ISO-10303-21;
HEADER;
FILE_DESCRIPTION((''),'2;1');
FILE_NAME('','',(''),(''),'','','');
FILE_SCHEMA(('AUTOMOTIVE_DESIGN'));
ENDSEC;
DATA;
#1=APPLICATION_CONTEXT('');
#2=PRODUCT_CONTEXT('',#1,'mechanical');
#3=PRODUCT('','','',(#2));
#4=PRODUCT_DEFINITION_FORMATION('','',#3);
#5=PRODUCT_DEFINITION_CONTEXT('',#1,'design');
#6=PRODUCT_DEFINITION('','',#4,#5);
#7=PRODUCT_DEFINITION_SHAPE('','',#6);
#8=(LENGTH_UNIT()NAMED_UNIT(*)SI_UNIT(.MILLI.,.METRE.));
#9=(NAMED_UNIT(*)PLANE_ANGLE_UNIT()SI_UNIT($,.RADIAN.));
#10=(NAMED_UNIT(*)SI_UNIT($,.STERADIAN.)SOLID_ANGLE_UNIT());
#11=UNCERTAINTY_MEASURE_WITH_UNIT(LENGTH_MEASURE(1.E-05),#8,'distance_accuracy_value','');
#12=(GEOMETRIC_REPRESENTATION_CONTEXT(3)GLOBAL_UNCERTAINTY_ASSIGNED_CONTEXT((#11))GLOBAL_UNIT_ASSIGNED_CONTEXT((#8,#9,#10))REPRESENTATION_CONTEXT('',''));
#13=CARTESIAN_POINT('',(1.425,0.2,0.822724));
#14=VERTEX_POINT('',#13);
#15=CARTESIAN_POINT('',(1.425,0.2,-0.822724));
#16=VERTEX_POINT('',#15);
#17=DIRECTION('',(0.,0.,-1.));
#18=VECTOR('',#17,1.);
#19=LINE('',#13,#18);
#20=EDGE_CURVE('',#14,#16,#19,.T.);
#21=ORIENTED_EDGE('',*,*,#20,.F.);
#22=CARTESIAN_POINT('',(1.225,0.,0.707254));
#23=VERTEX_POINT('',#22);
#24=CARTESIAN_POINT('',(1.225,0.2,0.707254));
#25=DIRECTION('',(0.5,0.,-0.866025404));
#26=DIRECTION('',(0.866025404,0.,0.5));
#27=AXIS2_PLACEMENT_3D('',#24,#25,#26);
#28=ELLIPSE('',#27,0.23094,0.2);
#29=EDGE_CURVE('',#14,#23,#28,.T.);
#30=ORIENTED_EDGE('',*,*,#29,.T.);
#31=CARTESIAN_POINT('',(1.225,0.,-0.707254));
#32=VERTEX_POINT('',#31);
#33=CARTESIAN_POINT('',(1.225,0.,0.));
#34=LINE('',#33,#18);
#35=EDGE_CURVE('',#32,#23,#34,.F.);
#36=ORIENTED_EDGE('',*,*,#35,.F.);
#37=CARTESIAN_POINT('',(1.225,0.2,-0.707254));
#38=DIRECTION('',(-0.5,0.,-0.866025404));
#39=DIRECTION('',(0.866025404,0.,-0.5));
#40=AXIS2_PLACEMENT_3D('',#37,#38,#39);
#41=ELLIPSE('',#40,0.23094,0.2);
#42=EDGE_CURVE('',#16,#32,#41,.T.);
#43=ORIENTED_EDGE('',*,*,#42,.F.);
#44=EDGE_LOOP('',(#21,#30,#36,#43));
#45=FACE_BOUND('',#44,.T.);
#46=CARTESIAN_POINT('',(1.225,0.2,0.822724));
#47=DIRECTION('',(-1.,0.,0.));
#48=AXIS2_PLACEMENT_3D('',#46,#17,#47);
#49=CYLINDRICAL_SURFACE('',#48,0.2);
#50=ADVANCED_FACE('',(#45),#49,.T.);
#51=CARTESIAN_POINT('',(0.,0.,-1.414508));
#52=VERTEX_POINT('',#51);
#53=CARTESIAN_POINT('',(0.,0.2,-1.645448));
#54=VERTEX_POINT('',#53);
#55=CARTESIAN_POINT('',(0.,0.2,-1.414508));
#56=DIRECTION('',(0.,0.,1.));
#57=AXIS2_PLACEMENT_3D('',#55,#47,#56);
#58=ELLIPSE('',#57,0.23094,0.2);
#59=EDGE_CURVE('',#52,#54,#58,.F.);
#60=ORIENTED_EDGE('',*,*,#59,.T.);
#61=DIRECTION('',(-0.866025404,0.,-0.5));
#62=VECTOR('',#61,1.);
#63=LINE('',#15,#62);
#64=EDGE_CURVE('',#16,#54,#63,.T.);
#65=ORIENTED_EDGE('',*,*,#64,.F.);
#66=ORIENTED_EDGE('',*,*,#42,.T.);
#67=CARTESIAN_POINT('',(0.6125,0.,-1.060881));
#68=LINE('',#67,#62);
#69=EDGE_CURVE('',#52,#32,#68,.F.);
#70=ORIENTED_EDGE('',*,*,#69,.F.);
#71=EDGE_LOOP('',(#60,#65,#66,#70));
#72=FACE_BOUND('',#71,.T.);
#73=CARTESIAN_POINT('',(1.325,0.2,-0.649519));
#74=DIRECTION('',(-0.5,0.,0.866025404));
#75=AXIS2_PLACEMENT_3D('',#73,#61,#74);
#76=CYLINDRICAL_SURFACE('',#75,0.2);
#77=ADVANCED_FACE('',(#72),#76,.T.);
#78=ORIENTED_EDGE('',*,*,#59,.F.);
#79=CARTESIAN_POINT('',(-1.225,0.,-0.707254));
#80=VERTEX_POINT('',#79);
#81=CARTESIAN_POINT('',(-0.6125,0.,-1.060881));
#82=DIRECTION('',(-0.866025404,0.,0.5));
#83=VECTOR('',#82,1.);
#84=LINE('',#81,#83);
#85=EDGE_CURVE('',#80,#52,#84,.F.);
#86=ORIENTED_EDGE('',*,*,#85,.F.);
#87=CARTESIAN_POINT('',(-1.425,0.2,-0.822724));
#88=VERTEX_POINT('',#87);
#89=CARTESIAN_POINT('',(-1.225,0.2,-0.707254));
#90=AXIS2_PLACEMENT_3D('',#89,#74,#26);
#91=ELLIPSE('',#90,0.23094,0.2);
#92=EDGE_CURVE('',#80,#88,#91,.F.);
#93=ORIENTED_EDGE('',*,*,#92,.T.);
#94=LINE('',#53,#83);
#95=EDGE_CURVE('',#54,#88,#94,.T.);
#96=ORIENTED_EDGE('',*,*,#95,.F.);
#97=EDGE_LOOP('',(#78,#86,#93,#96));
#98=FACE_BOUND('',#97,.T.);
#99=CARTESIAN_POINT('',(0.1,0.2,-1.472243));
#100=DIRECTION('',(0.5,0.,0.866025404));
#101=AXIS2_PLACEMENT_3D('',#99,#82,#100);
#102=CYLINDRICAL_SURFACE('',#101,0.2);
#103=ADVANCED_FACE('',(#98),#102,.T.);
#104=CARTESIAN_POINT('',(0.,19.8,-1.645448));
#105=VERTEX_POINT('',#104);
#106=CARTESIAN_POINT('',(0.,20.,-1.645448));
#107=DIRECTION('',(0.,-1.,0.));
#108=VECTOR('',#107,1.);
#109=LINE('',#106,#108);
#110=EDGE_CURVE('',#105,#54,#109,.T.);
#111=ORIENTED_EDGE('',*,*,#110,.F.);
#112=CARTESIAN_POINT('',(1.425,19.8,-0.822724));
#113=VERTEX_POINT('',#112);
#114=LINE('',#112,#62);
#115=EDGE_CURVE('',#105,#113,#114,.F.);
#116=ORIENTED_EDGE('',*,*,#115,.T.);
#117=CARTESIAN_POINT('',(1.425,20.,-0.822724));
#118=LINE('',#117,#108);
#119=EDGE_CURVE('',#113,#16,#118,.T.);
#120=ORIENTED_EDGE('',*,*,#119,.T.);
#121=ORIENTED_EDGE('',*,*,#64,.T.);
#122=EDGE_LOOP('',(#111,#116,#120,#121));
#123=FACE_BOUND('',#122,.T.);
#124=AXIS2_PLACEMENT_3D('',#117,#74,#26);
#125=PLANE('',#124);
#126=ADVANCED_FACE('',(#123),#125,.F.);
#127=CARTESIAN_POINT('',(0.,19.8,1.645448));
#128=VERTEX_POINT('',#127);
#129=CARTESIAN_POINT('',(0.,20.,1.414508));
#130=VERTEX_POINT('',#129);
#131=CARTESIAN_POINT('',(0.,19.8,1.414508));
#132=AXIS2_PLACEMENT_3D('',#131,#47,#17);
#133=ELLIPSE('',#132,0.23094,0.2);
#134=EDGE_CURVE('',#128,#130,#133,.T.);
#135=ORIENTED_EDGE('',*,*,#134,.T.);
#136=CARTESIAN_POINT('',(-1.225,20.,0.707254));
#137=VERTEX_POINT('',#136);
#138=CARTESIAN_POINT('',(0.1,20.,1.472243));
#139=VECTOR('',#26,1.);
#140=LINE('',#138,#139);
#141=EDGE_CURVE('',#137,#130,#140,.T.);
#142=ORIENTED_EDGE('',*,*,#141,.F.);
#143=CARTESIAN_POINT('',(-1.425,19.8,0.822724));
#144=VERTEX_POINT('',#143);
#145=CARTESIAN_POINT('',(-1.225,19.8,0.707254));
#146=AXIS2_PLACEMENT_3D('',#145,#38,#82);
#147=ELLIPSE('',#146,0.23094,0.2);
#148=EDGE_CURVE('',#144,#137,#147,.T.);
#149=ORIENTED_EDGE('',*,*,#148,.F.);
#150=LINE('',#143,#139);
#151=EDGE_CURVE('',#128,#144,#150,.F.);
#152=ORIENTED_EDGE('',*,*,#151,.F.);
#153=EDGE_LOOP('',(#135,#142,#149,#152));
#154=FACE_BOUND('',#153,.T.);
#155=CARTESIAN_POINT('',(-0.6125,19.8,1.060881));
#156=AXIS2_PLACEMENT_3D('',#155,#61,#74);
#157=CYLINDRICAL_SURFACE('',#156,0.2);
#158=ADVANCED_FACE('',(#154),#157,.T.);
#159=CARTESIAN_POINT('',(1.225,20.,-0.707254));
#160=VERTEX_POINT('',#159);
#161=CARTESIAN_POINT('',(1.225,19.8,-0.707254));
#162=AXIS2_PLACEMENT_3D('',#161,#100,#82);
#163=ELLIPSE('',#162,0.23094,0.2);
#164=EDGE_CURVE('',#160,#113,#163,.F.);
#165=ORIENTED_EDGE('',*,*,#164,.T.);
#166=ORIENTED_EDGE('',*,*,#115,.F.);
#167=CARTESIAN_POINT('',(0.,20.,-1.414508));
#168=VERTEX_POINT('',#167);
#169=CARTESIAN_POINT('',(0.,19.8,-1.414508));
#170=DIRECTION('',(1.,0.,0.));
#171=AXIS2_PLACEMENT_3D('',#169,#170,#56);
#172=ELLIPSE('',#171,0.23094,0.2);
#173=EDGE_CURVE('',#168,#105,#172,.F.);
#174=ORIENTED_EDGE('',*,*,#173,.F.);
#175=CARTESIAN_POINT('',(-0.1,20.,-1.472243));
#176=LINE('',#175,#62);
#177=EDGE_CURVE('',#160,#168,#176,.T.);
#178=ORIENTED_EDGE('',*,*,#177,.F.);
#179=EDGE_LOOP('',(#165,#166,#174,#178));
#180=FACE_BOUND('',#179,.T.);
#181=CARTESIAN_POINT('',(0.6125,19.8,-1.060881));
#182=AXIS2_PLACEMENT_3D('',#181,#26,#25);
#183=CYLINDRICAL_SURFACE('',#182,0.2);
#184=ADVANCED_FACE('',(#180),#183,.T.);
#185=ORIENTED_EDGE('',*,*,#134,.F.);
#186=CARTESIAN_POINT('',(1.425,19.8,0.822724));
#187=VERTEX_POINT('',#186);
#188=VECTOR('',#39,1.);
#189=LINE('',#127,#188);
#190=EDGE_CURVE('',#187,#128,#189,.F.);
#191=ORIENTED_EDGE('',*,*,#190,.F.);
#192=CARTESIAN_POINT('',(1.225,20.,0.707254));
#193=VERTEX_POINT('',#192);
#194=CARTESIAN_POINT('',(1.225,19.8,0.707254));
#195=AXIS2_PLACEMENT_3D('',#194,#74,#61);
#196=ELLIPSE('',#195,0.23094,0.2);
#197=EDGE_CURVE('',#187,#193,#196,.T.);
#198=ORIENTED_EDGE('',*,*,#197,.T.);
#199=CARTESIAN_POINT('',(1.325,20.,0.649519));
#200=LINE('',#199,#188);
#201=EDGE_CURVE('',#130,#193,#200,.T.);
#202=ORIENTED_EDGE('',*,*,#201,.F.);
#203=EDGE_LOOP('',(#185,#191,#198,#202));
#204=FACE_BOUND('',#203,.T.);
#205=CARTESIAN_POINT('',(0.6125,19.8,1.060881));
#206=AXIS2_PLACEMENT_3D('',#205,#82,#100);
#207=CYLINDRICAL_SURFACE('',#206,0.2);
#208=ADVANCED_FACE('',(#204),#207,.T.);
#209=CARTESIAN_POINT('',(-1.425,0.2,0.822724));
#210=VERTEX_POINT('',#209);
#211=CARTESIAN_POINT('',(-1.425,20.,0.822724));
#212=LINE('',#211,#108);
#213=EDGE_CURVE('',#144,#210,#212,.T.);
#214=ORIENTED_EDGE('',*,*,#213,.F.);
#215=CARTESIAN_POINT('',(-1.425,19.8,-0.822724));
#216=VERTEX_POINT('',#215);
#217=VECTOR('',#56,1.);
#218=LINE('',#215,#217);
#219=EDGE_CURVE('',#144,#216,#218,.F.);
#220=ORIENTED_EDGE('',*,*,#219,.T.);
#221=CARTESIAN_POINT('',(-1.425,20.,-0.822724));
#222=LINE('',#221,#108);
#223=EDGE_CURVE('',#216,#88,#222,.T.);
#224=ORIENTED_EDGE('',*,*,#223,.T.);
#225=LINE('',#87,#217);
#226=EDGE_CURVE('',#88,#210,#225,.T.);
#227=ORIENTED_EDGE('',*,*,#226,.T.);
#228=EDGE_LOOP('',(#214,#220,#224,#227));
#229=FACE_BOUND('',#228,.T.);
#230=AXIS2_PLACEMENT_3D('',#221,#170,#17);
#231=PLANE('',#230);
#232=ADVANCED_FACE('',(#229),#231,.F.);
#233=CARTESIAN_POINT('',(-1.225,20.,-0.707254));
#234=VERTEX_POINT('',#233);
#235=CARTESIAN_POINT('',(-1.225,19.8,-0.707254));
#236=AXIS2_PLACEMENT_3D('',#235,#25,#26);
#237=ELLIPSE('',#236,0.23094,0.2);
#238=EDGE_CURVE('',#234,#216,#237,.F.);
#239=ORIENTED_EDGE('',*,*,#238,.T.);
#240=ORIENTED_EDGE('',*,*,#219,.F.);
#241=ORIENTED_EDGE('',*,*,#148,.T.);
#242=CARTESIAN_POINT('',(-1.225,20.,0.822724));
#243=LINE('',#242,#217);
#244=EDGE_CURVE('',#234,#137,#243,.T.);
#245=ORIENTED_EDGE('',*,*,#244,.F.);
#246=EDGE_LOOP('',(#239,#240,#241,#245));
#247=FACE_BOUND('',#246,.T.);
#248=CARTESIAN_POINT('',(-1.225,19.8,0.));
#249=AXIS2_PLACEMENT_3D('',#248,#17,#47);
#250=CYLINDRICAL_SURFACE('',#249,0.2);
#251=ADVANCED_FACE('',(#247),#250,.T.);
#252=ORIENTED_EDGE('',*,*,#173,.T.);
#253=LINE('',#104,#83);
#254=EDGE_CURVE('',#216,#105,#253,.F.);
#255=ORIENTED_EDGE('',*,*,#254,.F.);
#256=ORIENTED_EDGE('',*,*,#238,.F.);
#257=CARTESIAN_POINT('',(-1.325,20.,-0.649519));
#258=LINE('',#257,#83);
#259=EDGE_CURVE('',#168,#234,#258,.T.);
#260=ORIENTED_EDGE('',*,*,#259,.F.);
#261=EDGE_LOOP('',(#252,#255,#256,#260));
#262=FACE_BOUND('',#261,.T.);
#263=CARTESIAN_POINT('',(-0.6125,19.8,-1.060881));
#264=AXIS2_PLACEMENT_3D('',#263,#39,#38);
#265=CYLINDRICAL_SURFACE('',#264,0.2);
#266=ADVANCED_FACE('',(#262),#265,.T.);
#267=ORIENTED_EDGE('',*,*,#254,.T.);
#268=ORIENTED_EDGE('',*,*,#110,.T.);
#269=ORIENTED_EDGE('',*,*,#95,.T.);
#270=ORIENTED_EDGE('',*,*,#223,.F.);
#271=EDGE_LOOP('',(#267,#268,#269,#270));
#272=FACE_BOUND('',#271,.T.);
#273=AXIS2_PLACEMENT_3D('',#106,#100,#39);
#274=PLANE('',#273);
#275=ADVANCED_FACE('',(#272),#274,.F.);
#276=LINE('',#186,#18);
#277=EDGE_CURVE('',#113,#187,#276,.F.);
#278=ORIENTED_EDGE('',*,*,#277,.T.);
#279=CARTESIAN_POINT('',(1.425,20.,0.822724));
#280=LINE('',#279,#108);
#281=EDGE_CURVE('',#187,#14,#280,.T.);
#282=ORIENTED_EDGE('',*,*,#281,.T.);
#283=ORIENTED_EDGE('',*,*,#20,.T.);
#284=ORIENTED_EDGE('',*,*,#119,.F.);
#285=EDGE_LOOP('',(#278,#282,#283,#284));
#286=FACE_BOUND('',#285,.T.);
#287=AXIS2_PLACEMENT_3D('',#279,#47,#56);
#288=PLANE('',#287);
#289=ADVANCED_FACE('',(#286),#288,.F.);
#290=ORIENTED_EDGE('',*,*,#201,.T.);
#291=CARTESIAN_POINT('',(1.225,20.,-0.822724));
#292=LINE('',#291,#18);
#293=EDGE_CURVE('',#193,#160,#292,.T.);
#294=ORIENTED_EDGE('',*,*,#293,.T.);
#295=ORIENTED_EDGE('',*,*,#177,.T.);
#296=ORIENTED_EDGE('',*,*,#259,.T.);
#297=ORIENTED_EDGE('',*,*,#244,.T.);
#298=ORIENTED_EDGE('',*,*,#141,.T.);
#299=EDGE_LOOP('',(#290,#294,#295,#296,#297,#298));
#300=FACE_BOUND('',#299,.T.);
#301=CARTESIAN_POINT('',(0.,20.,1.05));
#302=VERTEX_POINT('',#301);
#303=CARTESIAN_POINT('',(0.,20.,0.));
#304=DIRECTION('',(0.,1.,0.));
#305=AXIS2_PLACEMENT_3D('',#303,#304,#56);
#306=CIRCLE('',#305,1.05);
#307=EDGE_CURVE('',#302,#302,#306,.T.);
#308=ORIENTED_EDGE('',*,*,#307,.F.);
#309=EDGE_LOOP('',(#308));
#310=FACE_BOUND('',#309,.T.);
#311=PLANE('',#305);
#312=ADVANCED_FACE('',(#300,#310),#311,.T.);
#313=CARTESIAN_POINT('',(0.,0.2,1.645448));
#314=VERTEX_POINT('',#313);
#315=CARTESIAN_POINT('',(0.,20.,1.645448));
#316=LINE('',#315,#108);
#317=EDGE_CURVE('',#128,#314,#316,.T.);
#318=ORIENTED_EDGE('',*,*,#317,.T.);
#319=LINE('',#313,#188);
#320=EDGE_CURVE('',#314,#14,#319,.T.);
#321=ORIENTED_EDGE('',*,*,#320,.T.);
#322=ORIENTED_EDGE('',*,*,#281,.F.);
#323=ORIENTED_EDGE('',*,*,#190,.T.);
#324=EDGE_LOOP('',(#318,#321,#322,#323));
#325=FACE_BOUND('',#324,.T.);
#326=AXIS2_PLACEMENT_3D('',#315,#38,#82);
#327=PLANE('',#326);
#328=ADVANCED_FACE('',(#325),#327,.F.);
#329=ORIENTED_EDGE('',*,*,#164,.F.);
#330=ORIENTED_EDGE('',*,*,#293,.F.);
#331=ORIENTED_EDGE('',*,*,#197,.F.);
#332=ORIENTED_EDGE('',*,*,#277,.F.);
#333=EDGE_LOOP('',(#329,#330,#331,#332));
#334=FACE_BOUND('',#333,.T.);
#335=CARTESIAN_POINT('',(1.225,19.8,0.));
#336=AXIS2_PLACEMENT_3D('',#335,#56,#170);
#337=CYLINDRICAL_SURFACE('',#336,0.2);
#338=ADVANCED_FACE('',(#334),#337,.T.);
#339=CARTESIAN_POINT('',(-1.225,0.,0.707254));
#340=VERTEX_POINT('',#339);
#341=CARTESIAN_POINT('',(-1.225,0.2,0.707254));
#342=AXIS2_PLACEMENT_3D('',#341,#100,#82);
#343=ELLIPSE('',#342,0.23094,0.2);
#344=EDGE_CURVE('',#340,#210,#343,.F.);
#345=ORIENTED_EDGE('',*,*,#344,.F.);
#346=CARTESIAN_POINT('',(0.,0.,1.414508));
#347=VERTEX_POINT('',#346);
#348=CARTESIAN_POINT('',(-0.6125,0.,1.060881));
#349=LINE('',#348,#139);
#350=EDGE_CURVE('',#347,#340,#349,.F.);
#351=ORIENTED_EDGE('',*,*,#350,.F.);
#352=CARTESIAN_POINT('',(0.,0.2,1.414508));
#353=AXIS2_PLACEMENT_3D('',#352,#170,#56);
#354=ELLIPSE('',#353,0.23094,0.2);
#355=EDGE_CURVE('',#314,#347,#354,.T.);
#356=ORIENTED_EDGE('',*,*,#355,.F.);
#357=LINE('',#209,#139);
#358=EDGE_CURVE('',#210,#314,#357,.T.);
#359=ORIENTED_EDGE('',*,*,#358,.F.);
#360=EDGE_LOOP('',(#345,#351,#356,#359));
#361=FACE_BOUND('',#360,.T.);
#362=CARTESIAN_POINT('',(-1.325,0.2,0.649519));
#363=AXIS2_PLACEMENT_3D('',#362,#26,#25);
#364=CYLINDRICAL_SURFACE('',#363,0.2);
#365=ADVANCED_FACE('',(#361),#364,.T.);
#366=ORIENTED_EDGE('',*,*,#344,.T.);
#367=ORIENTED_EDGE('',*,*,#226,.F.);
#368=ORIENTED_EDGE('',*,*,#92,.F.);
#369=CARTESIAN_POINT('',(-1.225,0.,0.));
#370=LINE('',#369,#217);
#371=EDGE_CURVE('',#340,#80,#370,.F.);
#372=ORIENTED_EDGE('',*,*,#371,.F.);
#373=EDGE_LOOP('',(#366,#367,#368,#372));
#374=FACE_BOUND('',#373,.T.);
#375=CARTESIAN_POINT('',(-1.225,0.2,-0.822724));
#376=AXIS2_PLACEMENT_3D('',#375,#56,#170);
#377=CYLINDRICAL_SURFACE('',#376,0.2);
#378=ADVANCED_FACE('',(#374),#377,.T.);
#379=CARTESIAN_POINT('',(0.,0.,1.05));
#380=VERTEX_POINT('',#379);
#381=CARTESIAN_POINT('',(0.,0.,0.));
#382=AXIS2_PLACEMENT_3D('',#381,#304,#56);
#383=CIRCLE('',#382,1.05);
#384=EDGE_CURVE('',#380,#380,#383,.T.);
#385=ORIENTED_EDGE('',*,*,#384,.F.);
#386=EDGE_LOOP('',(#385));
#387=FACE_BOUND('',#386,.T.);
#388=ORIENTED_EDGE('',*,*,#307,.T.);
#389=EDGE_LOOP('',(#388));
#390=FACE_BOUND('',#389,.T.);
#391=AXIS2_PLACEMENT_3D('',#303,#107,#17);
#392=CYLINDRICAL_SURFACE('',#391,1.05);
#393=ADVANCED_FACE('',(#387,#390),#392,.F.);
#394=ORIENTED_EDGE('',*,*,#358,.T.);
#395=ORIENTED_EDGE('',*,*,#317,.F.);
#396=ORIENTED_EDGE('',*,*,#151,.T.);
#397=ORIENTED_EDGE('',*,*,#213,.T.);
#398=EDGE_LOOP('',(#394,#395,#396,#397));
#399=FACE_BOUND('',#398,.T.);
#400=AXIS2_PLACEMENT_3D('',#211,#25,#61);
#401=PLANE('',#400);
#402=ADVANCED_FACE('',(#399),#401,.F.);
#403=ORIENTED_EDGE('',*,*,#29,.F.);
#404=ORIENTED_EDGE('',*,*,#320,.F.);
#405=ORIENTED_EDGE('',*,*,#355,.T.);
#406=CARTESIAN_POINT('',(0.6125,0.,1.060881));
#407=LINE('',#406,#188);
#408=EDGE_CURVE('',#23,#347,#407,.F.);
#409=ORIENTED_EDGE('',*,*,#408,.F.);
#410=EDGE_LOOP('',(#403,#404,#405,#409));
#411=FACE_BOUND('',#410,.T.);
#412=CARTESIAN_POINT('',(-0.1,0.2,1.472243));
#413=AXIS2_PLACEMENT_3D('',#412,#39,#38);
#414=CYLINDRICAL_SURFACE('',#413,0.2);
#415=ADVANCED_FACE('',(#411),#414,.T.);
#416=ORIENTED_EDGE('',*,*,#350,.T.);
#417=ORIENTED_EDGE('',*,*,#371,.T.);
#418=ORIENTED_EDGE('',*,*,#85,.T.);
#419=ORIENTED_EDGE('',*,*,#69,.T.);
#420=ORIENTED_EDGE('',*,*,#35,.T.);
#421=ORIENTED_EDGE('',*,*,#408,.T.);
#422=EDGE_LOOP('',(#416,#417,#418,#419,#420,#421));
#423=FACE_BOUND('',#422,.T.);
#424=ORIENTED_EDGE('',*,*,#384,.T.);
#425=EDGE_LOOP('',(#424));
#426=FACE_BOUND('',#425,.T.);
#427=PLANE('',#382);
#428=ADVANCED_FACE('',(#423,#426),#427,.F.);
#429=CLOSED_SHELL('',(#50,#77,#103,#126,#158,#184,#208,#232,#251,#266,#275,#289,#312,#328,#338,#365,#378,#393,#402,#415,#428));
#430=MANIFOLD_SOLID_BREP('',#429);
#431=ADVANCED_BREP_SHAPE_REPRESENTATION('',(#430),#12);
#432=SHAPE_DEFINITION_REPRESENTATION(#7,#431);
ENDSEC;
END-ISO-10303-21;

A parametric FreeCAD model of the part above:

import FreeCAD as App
import Part
import Sketcher

V = App.Vector
Q = App.Units.Quantity


def edges_at(feature, points):
    """Names of the edges that pass closest to the given points."""
    edges = feature.Shape.Edges
    near = lambda p: min(range(len(edges)), key=lambda i: edges[i].distToShape(Part.Vertex(*p))[0])
    return sorted({f"Edge{near(p) + 1}" for p in points})


def add_polygon(sketch, points):
    """Adds a closed chain of lines whose ends are joined by coincident constraints."""
    first, n = sketch.GeometryCount, len(points)
    for a, b in zip(points, points[1:] + points[:1]):
        sketch.addGeometry(Part.LineSegment(App.Vector(*a, 0), App.Vector(*b, 0)), False)
    for i in range(n):
        sketch.addConstraint(Sketcher.Constraint("Coincident", first + i, 2, first + (i + 1) % n, 1))

doc = App.newDocument("Part")
params = doc.addObject("Spreadsheet::Sheet", "Params")
for row, (alias, value) in enumerate([
    ("sketch1_diameter", "2.1 mm"),
    ("pad1_length", "20 mm"),
    ("fillet_radius", "0.2 mm"),
], start=1):
    params.set(f"A{row}", alias)
    params.set(f"B{row}", "=" + value)
    params.setAlias(f"B{row}", alias)

body = doc.addObject("PartDesign::Body", "Body")

sketch1 = doc.addObject("Sketcher::SketchObject", "Sketch")
body.addObject(sketch1)
sketch1.AttachmentSupport = (doc.XZ_Plane, [""])
sketch1.MapMode = "FlatFace"
add_polygon(sketch1, [(1.4, -0.8), (0, -1.6), (-1.4, -0.8), (-1.4, 0.8), (0, 1.6), (1.4, 0.8)])
sketch1.addGeometry(Part.Circle(V(0, 0, 0), V(0, 0, 1), 1.1), False)
sketch1.addConstraint([
    Sketcher.Constraint("Vertical", 2),
    Sketcher.Constraint("Vertical", 5),
    Sketcher.Constraint("Coincident", 6, 3, -1, 1),
    Sketcher.Constraint("Symmetric", 0, 2, 3, 2, -1, 1),
    Sketcher.Constraint("Symmetric", 1, 2, 4, 2, -1, 1),
    Sketcher.Constraint("PointOnObject", 0, 2, -2),
    Sketcher.Constraint("Parallel", 0, 3),
    Sketcher.Constraint("Horizontal", 2, 2, 4, 2),
    Sketcher.Constraint("Diameter", 6, 2.1),
    Sketcher.Constraint("Angle", 0, Q("-150 deg")),
    Sketcher.Constraint("DistanceX", 2, 2, 4, 2, 2.85),
    Sketcher.Constraint("DistanceY", 2, 1, 2, 2, 1.645448),
])
sketch1.setExpression("Constraints[14]", "Params.sketch1_diameter")
pad1 = doc.addObject("PartDesign::Pad", "Pad")
body.addObject(pad1)
pad1.Profile = sketch1
pad1.setExpression("Length", "Params.pad1_length")
pad1.Reversed = True
doc.recompute()

fillet = doc.addObject("PartDesign::Fillet", "Fillet")
body.addObject(fillet)
fillet.Base = (pad1, edges_at(pad1, [
    (-0.713, 20, -1.234),
    (-1.425, 20, 0),
    (-0.713, 20, 1.234),
    (0.713, 20, 1.234),
    (1.425, 20, 0),
    (0.713, 0, 1.234),
    (-0.713, 0, 1.234),
    (-1.425, 0, 0),
    (-0.713, 0, -1.234),
    (0.713, 0, -1.234),
    (1.425, 0, 0),
    (0.713, 20, -1.234),
]))
fillet.setExpression("Radius", "Params.fillet_radius")

doc.recompute()
